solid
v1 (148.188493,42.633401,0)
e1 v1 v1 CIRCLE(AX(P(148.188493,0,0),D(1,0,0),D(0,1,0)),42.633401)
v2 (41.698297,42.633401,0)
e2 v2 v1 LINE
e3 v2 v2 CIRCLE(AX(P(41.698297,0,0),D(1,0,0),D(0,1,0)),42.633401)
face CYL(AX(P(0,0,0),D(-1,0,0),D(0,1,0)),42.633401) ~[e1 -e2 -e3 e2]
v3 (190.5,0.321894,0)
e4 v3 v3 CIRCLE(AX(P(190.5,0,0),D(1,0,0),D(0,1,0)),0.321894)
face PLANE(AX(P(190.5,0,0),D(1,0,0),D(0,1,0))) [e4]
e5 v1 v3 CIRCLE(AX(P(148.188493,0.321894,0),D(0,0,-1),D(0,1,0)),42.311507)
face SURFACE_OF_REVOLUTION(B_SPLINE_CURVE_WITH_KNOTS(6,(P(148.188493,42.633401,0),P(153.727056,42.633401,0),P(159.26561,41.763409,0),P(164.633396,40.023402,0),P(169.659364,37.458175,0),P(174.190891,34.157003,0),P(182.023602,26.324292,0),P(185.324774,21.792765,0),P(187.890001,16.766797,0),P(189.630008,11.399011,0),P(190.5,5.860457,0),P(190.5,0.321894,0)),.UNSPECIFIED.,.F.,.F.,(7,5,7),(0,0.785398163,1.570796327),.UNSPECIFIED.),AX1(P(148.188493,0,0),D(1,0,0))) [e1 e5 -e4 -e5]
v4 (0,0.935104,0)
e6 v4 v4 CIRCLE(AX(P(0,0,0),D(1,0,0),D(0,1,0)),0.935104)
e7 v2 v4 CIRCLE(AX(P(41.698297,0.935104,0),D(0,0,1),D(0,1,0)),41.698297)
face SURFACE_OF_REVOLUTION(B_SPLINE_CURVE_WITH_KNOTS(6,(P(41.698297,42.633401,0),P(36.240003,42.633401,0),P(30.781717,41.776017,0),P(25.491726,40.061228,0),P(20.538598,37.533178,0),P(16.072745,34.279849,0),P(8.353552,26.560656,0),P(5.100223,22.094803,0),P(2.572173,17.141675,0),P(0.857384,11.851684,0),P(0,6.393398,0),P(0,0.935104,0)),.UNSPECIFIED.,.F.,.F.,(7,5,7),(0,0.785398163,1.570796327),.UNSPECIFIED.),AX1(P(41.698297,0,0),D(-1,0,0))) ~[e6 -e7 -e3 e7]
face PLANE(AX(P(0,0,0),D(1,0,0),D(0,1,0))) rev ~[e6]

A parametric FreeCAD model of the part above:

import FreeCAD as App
import Part
import Sketcher

V = App.Vector
Q = App.Units.Quantity


def edges_at(feature, points):
    """Names of the edges that pass closest to the given points."""
    edges = feature.Shape.Edges
    near = lambda p: min(range(len(edges)), key=lambda i: edges[i].distToShape(Part.Vertex(*p))[0])
    return sorted({f"Edge{near(p) + 1}" for p in points})

doc = App.newDocument("Part")
body = doc.addObject("PartDesign::Body", "Body")

# Sketch on YZ plane
sketch1 = doc.addObject("Sketcher::SketchObject", "Sketch")
body.addObject(sketch1)
sketch1.AttachmentSupport = (doc.YZ_Plane, [""])
sketch1.MapMode = "FlatFace"
sketch1.addGeometry(Part.Circle(V(0, 0, 0), V(0, 0, 1), 43), False)
sketch1.addConstraint([
    Sketcher.Constraint("Coincident", 0, 3, -1, 1),
    Sketcher.Constraint("Diameter", 0, 85.266802),
])
pad1 = doc.addObject("PartDesign::Pad", "Pad")
body.addObject(pad1)
pad1.Profile = sketch1
pad1.Length = Q("7.5 in")
doc.recompute()

fillet = doc.addObject("PartDesign::Fillet", "Fillet")
body.addObject(fillet)
fillet.Base = (pad1, edges_at(pad1, [(190.5, -42.633, 0)]))
fillet.Radius = 42.311507
doc.recompute()

fillet2 = doc.addObject("PartDesign::Fillet", "Fillet001")
body.addObject(fillet2)
fillet2.Base = (fillet, edges_at(fillet, [(0, -42.633, 0)]))
fillet2.Radius = 41.698297

doc.recompute()
